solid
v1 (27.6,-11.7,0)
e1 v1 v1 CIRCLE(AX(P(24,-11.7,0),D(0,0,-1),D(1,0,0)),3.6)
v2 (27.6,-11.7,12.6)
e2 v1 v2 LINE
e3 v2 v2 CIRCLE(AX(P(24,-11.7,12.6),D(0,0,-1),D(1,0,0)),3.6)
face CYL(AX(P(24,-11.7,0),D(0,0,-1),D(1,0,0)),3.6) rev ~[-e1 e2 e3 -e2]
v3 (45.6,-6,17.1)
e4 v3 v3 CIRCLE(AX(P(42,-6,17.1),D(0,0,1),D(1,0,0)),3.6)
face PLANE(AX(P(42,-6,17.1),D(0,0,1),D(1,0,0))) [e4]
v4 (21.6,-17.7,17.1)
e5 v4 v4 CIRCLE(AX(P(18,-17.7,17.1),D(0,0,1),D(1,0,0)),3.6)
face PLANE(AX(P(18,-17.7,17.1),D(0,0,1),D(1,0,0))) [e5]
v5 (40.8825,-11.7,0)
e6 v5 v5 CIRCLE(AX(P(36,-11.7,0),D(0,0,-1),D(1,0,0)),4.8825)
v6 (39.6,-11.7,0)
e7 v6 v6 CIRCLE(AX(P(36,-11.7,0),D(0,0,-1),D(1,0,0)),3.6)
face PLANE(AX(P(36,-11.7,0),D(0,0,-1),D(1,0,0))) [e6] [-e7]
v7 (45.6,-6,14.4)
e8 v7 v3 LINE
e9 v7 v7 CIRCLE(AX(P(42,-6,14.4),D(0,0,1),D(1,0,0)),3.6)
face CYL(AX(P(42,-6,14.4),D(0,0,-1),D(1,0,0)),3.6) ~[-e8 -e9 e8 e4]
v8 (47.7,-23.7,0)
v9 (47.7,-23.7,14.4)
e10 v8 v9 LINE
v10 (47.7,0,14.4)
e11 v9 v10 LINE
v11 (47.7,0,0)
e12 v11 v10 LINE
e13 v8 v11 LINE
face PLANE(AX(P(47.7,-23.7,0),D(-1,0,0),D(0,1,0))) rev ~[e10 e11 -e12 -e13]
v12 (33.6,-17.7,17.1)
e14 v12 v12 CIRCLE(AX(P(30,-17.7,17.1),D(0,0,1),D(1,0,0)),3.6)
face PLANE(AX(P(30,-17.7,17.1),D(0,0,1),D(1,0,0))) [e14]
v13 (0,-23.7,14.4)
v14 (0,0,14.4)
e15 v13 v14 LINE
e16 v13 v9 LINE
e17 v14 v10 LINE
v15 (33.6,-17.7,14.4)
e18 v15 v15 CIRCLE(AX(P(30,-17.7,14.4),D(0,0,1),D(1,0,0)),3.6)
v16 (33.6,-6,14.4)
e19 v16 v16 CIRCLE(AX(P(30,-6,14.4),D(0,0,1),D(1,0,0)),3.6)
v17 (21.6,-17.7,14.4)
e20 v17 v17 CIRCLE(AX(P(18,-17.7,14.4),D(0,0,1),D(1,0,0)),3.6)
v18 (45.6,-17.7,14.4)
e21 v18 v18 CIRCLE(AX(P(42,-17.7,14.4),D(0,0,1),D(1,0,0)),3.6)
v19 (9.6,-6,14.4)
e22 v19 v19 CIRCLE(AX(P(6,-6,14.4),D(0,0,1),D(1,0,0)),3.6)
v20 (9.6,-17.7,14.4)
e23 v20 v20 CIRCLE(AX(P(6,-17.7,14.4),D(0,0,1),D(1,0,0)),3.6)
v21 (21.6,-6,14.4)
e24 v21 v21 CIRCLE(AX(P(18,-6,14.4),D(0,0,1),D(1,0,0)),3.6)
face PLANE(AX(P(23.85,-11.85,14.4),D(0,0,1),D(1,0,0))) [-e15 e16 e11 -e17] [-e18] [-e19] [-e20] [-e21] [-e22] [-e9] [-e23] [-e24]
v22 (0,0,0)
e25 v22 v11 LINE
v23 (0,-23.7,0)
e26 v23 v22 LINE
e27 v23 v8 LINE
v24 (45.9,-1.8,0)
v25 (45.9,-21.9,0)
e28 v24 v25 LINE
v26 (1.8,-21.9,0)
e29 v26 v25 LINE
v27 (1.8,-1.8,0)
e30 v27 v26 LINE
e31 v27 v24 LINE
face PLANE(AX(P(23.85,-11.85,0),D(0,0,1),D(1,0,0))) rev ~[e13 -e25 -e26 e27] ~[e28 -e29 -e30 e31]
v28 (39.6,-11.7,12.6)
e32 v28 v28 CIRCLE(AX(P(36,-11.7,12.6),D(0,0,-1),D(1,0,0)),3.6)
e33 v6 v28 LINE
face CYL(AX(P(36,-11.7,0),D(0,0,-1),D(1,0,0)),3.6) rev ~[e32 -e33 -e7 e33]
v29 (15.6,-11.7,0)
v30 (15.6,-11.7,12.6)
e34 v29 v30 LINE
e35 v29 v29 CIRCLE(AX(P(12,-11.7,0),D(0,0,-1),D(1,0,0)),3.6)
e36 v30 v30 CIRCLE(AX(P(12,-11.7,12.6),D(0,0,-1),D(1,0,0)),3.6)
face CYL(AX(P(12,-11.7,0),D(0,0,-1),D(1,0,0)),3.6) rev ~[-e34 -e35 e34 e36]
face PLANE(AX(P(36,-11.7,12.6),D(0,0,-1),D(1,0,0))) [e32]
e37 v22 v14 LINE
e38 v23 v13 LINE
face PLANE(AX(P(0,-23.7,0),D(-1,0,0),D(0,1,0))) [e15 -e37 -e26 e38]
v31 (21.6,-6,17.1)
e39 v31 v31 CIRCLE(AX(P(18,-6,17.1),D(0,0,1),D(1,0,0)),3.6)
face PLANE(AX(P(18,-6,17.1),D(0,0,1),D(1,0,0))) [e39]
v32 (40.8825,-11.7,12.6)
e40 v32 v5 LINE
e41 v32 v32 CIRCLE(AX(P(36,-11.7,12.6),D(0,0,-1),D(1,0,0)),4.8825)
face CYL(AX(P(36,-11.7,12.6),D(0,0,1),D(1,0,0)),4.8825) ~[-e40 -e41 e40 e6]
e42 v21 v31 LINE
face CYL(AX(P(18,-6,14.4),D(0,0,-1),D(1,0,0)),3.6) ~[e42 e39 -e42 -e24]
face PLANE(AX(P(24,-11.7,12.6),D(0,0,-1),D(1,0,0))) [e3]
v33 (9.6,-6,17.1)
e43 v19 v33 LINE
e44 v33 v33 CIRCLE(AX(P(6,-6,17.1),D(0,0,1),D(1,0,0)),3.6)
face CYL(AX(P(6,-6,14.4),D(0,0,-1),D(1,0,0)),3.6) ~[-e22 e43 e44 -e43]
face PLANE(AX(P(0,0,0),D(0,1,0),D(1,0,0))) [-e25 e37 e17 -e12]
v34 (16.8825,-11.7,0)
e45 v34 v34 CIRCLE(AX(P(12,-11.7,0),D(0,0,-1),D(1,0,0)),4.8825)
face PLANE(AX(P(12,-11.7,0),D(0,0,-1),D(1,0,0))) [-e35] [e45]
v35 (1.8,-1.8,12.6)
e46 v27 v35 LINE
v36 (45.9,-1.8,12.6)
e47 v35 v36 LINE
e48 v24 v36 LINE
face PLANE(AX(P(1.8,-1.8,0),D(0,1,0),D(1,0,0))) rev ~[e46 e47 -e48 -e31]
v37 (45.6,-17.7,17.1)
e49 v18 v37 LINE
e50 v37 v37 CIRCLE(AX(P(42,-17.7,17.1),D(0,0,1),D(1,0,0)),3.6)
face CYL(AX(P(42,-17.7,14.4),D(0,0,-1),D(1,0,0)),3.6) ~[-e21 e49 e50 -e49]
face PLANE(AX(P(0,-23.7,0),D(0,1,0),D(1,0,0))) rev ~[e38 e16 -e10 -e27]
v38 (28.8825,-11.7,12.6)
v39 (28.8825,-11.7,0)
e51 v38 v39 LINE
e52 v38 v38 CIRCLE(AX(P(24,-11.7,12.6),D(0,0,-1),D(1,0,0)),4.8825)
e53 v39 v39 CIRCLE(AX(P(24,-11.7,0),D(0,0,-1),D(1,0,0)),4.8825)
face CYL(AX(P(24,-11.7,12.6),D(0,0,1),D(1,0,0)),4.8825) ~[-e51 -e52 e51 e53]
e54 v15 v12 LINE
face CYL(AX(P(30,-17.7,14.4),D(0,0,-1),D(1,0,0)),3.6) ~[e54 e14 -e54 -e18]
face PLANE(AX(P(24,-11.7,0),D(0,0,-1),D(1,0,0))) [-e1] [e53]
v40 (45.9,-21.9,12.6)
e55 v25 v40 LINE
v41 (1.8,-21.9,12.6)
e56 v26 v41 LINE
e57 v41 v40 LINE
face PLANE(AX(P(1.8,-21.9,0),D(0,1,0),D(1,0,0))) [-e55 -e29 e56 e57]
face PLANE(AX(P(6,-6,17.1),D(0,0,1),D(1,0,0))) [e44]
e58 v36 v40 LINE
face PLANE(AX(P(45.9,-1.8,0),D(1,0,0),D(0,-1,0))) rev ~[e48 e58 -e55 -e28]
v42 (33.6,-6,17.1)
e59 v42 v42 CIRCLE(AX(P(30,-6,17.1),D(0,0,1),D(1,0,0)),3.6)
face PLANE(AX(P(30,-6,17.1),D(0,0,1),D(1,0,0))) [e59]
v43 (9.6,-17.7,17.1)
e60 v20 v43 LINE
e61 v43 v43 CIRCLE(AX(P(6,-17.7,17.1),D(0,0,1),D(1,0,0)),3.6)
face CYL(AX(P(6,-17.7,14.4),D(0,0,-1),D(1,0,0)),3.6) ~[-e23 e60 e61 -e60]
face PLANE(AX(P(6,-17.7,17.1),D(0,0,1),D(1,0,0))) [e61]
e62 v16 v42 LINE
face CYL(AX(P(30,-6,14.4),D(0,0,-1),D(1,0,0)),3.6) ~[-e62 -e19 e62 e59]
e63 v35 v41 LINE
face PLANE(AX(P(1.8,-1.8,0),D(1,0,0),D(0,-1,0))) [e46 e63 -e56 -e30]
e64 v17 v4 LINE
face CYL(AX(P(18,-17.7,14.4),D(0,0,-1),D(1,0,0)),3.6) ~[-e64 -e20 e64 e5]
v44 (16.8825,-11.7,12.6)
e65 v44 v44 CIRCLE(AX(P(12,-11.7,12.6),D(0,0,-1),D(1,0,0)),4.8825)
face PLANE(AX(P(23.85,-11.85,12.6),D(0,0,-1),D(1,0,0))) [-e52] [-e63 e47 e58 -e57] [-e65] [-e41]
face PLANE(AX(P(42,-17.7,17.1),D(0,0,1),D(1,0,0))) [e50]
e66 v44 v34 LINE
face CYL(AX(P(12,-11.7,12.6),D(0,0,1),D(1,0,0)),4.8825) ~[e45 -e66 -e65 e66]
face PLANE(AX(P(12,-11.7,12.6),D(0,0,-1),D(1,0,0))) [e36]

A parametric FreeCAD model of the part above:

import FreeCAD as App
import Part
import Sketcher

V = App.Vector
Q = App.Units.Quantity

doc = App.newDocument("Part")
body = doc.addObject("PartDesign::Body", "Body")

# Sketch on XY plane
sketch1 = body.newObject("Sketcher::SketchObject", "Sketch")
sketch1.AttachmentSupport = (doc.getObject("XY_Plane"), [""])
sketch1.MapMode = "FlatFace"
sketch1.addGeometry([
    Part.LineSegment(V(0, 0, 0), V(0, -23.7, 0)),
    Part.LineSegment(V(0, -23.7, 0), V(47.7, -23.7, 0)),
    Part.LineSegment(V(47.7, -23.7, 0), V(47.7, 0, 0)),
    Part.LineSegment(V(47.7, 0, 0), V(0, 0, 0)),
], False)
sketch1.addConstraint([
    Sketcher.Constraint("Coincident", 0, 2, 1, 1),
    Sketcher.Constraint("Coincident", 1, 2, 2, 1),
    Sketcher.Constraint("Coincident", 2, 2, 3, 1),
    Sketcher.Constraint("Coincident", 3, 2, 0, 1),
    Sketcher.Constraint("Vertical", 0),
    Sketcher.Constraint("Horizontal", 1),
    Sketcher.Constraint("Vertical", 2),
    Sketcher.Constraint("Horizontal", 3),
    Sketcher.Constraint("Coincident", 3, 2, -1, 1),
    Sketcher.Constraint("DistanceX", 1, 1, 1, 2, Q("47.7 mm")),
    Sketcher.Constraint("DistanceY", 0, 2, 0, 1, Q("23.7 mm")),
])
pad1 = body.newObject("PartDesign::Pad", "Pad")
pad1.Profile = sketch1
pad1.Length = 14.4

# Sketch on XY plane
sketch2 = body.newObject("Sketcher::SketchObject", "Sketch001")
sketch2.AttachmentSupport = (doc.getObject("XY_Plane"), [""])
sketch2.MapMode = "FlatFace"
sketch2.addGeometry([
    Part.LineSegment(V(1.8, -21.9, 0), V(1.8, -1.8, 0)),
    Part.LineSegment(V(1.8, -1.8, 0), V(45.9, -1.8, 0)),
    Part.LineSegment(V(45.9, -1.8, 0), V(45.9, -21.9, 0)),
    Part.LineSegment(V(45.9, -21.9, 0), V(1.8, -21.9, 0)),
], False)
sketch2.addConstraint([
    Sketcher.Constraint("Coincident", 0, 2, 1, 1),
    Sketcher.Constraint("Coincident", 1, 2, 2, 1),
    Sketcher.Constraint("Coincident", 2, 2, 3, 1),
    Sketcher.Constraint("Coincident", 3, 2, 0, 1),
    Sketcher.Constraint("Vertical", 0),
    Sketcher.Constraint("Horizontal", 1),
    Sketcher.Constraint("Vertical", 2),
    Sketcher.Constraint("Horizontal", 3),
    Sketcher.Constraint("DistanceX", 1, 1, 1, 2, Q("44.1 mm")),
    Sketcher.Constraint("DistanceY", 0, 1, 0, 2, Q("20.1 mm")),
    Sketcher.Constraint("DistanceX", -1, 1, 0, 2, Q("1.8 mm")),
    Sketcher.Constraint("DistanceY", 0, 2, -1, 1, Q("1.8 mm")),
])
pocket1 = body.newObject("PartDesign::Pocket", "Pocket")
pocket1.Profile = sketch2
pocket1.Length = 12.6
pocket1.Reversed = True

# Sketch on XY plane
sketch3 = body.newObject("Sketcher::SketchObject", "Sketch002")
sketch3.AttachmentSupport = (doc.getObject("XY_Plane"), [""])
sketch3.MapMode = "FlatFace"
sketch3.AttachmentOffset = App.Placement(V(0, 0, 14.4), App.Rotation())
sketch3.addGeometry([
    Part.Circle(V(6, -17.7, 0), V(0, 0, 1), 3.6),
    Part.Circle(V(6, -6, 0), V(0, 0, 1), 3.6),
], False)
sketch3.addConstraint([
    Sketcher.Constraint("Equal", 0, 1),
    Sketcher.Constraint("Vertical", 0, 3, 1, 3),
    Sketcher.Constraint("Diameter", 0, Q("7.2 mm")),
    Sketcher.Constraint("DistanceX", -1, 1, 0, 3, Q("6 mm")),
    Sketcher.Constraint("DistanceY", 1, 3, -1, 1, Q("6 mm")),
    Sketcher.Constraint("DistanceY", 0, 3, -1, 1, Q("17.7 mm")),
])
pad2 = body.newObject("PartDesign::Pad", "Pad001")
pad2.Profile = sketch3
pad2.Length = 2.7
doc.recompute()

linearpattern = body.newObject("PartDesign::LinearPattern", "LinearPattern")
linearpattern.Originals = [pad2]
linearpattern.Direction = (doc.getObject("X_Axis"), [""])
linearpattern.Mode = "offset"
linearpattern.Offset = 12
linearpattern.Occurrences = 4
body.Tip = linearpattern

# Sketch on XY plane
sketch4 = body.newObject("Sketcher::SketchObject", "Sketch003")
sketch4.AttachmentSupport = (doc.getObject("XY_Plane"), [""])
sketch4.MapMode = "FlatFace"
sketch4.AttachmentOffset = App.Placement(V(0, 0, 12.6), App.Rotation())
sketch4.addGeometry(Part.Circle(V(12, -11.7, 0), V(0, 0, 1), 4.8825), False)
sketch4.addConstraint([
    Sketcher.Constraint("Diameter", 0, Q("9.765 mm")),
    Sketcher.Constraint("DistanceX", -1, 1, 0, 3, Q("12 mm")),
    Sketcher.Constraint("DistanceY", 0, 3, -1, 1, Q("11.7 mm")),
])
pad3 = body.newObject("PartDesign::Pad", "Pad002")
pad3.Profile = sketch4
pad3.Length = 12.6
pad3.Reversed = True
doc.recompute()

linearpattern2 = body.newObject("PartDesign::LinearPattern", "LinearPattern001")
linearpattern2.Originals = [pad3]
linearpattern2.Direction = (doc.getObject("X_Axis"), [""])
linearpattern2.Mode = "offset"
linearpattern2.Offset = 12
linearpattern2.Occurrences = 3
body.Tip = linearpattern2

# Sketch on XY plane
sketch5 = body.newObject("Sketcher::SketchObject", "Sketch004")
sketch5.AttachmentSupport = (doc.getObject("XY_Plane"), [""])
sketch5.MapMode = "FlatFace"
sketch5.addGeometry(Part.Circle(V(12, -11.7, 0), V(0, 0, 1), 3.6), False)
sketch5.addConstraint([
    Sketcher.Constraint("Diameter", 0, Q("7.2 mm")),
    Sketcher.Constraint("DistanceX", -1, 1, 0, 3, Q("12 mm")),
    Sketcher.Constraint("DistanceY", 0, 3, -1, 1, Q("11.7 mm")),
])
pocket2 = body.newObject("PartDesign::Pocket", "Pocket001")
pocket2.Profile = sketch5
pocket2.Length = 12.6
pocket2.Reversed = True
doc.recompute()

linearpattern3 = body.newObject("PartDesign::LinearPattern", "LinearPattern002")
linearpattern3.Originals = [pocket2]
linearpattern3.Direction = (doc.getObject("X_Axis"), [""])
linearpattern3.Mode = "offset"
linearpattern3.Offset = 12
linearpattern3.Occurrences = 3
body.Tip = linearpattern3

doc.recompute()
